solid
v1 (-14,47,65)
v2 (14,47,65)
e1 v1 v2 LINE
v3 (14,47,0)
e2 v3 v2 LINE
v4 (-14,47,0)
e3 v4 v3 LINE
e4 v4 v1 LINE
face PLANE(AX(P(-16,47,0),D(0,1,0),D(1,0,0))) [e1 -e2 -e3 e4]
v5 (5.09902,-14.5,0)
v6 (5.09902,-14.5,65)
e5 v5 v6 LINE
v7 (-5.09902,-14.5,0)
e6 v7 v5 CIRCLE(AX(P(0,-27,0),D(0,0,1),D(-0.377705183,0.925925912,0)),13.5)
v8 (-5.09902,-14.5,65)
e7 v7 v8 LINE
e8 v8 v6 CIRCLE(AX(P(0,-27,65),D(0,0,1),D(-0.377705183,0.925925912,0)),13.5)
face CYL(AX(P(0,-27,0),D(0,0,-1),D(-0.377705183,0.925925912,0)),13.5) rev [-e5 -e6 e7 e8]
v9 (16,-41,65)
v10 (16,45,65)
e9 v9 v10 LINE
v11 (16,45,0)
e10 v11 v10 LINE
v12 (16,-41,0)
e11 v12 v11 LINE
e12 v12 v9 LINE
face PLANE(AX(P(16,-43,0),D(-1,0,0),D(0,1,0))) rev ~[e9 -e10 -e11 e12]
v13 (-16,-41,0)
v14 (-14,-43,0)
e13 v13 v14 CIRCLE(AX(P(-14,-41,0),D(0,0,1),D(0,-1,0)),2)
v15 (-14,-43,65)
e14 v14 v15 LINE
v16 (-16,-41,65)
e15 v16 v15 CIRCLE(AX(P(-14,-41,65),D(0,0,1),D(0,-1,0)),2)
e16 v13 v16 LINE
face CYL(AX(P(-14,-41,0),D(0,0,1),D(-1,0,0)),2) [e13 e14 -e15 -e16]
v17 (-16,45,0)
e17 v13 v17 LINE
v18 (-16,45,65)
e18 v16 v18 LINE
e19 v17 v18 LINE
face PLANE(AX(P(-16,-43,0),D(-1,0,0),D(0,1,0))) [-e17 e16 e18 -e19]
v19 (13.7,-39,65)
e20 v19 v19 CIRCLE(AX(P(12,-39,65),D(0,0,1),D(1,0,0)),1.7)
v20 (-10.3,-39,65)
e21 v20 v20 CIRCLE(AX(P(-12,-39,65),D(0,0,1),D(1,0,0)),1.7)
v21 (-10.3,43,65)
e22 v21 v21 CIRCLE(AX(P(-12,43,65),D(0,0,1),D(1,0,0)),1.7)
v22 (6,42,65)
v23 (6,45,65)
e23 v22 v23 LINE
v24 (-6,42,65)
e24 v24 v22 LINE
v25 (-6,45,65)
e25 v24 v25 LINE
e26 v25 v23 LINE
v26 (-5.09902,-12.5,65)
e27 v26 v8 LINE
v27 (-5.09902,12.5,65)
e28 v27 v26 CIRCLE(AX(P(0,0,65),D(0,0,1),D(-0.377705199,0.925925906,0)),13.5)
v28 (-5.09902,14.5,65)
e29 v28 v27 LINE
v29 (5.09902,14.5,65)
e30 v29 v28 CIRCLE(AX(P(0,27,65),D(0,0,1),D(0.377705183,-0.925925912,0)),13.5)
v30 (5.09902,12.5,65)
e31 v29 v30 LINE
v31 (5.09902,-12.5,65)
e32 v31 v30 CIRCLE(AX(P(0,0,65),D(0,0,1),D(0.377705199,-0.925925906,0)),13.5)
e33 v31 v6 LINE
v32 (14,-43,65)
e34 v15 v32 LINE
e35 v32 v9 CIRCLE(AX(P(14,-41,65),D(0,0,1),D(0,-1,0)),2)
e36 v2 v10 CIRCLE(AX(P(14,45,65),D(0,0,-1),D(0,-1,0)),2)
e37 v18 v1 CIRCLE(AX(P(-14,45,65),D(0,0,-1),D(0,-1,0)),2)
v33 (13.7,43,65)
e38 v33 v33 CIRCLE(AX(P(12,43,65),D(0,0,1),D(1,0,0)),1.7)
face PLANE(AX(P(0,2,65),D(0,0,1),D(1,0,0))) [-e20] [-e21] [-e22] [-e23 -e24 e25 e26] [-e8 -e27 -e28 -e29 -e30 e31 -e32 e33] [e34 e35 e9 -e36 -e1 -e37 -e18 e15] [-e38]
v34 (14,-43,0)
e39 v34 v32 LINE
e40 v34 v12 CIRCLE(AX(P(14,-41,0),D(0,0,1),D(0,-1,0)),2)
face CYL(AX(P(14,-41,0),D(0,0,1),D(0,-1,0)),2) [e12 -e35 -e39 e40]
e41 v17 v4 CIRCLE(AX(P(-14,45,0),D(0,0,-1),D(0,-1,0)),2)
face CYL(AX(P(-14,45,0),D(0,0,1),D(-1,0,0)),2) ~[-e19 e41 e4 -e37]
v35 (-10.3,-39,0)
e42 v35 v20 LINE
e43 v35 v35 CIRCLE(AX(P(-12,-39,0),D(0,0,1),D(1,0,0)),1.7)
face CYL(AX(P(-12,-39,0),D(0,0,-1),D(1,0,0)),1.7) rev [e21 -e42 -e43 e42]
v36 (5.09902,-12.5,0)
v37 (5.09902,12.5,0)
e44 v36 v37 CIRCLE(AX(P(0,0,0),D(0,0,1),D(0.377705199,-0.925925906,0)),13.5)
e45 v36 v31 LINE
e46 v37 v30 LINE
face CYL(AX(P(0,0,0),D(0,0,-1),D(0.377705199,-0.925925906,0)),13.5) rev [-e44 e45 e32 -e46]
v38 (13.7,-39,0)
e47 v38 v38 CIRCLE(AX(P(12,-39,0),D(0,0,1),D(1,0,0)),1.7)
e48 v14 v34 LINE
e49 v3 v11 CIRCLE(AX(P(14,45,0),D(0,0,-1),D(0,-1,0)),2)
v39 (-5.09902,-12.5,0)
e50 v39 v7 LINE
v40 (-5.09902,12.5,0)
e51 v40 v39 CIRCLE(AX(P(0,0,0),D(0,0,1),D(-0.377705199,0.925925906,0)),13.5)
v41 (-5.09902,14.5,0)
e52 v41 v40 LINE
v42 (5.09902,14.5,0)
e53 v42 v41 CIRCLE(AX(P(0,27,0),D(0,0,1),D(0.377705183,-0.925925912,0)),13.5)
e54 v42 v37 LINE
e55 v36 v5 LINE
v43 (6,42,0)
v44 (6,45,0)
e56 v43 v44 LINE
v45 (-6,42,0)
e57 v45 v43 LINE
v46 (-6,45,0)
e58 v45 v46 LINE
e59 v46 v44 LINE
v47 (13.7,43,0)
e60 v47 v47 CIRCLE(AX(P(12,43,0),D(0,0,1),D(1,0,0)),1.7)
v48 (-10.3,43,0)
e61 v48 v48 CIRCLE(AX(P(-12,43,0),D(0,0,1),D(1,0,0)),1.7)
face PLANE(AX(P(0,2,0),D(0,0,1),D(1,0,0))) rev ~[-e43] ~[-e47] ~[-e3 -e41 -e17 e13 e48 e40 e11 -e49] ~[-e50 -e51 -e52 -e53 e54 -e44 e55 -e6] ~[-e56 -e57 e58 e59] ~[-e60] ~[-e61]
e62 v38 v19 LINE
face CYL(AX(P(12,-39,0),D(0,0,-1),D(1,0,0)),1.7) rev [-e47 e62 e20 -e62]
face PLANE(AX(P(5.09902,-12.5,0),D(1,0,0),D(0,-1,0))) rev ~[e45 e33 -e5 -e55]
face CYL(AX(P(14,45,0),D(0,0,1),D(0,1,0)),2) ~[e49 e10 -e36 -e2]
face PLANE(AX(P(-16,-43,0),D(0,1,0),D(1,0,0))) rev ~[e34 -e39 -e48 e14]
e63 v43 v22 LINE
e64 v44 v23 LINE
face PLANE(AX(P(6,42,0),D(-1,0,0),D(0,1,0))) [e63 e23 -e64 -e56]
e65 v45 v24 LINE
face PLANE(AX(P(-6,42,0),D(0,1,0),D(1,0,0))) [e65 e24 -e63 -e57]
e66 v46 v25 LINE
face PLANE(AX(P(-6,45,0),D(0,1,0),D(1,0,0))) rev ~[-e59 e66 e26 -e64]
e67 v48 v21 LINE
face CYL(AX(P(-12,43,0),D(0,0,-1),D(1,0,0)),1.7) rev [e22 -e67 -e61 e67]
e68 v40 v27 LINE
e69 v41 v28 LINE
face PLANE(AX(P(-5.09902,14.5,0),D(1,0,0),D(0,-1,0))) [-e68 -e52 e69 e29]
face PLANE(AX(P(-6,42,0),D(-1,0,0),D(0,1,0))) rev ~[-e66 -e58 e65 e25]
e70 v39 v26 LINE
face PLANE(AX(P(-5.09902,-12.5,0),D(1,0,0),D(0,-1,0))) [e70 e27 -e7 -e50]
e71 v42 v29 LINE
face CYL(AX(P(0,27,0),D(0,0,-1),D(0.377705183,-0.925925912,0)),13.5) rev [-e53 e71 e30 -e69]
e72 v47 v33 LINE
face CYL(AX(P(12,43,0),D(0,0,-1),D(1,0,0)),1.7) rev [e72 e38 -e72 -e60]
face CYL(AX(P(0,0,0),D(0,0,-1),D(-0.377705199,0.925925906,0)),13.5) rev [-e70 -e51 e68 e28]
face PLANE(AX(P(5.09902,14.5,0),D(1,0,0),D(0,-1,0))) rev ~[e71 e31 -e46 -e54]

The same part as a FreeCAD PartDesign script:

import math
import FreeCAD as App
import Part
import Sketcher


def edges_at(feature, points):
    """Names of the edges that pass closest to the given points."""
    edges = feature.Shape.Edges
    near = lambda p: min(range(len(edges)), key=lambda i: edges[i].distToShape(Part.Vertex(*p))[0])
    return sorted({f"Edge{near(p) + 1}" for p in points})


def add_polygon(sketch, points):
    """Adds a closed chain of lines whose ends are joined by coincident constraints."""
    first, n = sketch.GeometryCount, len(points)
    for a, b in zip(points, points[1:] + points[:1]):
        sketch.addGeometry(Part.LineSegment(App.Vector(*a, 0), App.Vector(*b, 0)), False)
    for i in range(n):
        sketch.addConstraint(Sketcher.Constraint("Coincident", first + i, 2, first + (i + 1) % n, 1))

doc = App.newDocument("Part")
params = doc.addObject("Spreadsheet::Sheet", "Params")
for row, (alias, value) in enumerate([
    ("sketch1_diameter", "3.4 mm"),
    ("sketch1_radius", "13.5 mm"),
    ("sketch1_width", "32 mm"),
    ("sketch1_width2", "12 mm"),
    ("sketch1_height", "90 mm"),
    ("pad1_length", "65 mm"),
    ("fillet_radius", "2 mm"),
], start=1):
    params.set(f"A{row}", alias)
    params.set(f"B{row}", "=" + value)
    params.setAlias(f"B{row}", alias)

body = doc.addObject("PartDesign::Body", "Body")

sketch1 = body.newObject("Sketcher::SketchObject", "Sketch")
sketch1.AttachmentSupport = (doc.getObject("XY_Plane"), [""])
sketch1.MapMode = "FlatFace"
add_polygon(sketch1, [(-16, 47), (-16, -43), (16, -43), (16, 47)])
sketch1.addGeometry(Part.Circle(App.Vector(-12, -39, 0), App.Vector(0, 0, 1), 1.7), False)
sketch1.addGeometry(Part.Circle(App.Vector(12, -39, 0), App.Vector(0, 0, 1), 1.7), False)
sketch1.addGeometry(Part.ArcOfCircle(Part.Circle(App.Vector(0, 27, 0), App.Vector(0, 0, 1), 13.5), math.radians(-68), math.radians(248)), False)
sketch1.addGeometry(Part.LineSegment(App.Vector(5.1, 14.5, 0), App.Vector(5.1, 12.5, 0)), False)
sketch1.addGeometry(Part.ArcOfCircle(Part.Circle(App.Vector(0, 0, 0), App.Vector(0, 0, 1), 13.5), math.radians(-68), math.radians(68)), False)
sketch1.addGeometry(Part.LineSegment(App.Vector(5.1, -12.5, 0), App.Vector(5.1, -14.5, 0)), False)
sketch1.addGeometry(Part.ArcOfCircle(Part.Circle(App.Vector(0, -27, 0), App.Vector(0, 0, 1), 13.5), math.radians(112), math.radians(428)), False)
sketch1.addGeometry(Part.LineSegment(App.Vector(-5.1, -14.5, 0), App.Vector(-5.1, -12.5, 0)), False)
sketch1.addGeometry(Part.ArcOfCircle(Part.Circle(App.Vector(0, 0, 0), App.Vector(0, 0, 1), 13.5), math.radians(112), math.radians(248)), False)
sketch1.addGeometry(Part.LineSegment(App.Vector(-5.1, 12.5, 0), App.Vector(-5.1, 14.5, 0)), False)
sketch1.addGeometry(Part.Circle(App.Vector(-12, 43, 0), App.Vector(0, 0, 1), 1.7), False)
add_polygon(sketch1, [(6, 42), (-6, 42), (-6, 45), (6, 45)])
sketch1.addGeometry(Part.Circle(App.Vector(12, 43, 0), App.Vector(0, 0, 1), 1.7), False)
sketch1.addConstraint(Sketcher.Constraint("Coincident", 6, 1, 7, 1))
sketch1.addConstraint(Sketcher.Constraint("Coincident", 7, 2, 8, 2))
sketch1.addConstraint(Sketcher.Constraint("Coincident", 8, 1, 9, 1))
sketch1.addConstraint(Sketcher.Constraint("Coincident", 9, 2, 10, 2))
sketch1.addConstraint(Sketcher.Constraint("Coincident", 10, 1, 11, 1))
sketch1.addConstraint(Sketcher.Constraint("Coincident", 11, 2, 12, 2))
sketch1.addConstraint(Sketcher.Constraint("Coincident", 12, 1, 13, 1))
sketch1.addConstraint(Sketcher.Constraint("Coincident", 13, 2, 6, 2))
sketch1.addConstraint(Sketcher.Constraint("Vertical", 0))
sketch1.addConstraint(Sketcher.Constraint("Horizontal", 1))
sketch1.addConstraint(Sketcher.Constraint("Vertical", 2))
sketch1.addConstraint(Sketcher.Constraint("Horizontal", 3))
sketch1.addConstraint(Sketcher.Constraint("Vertical", 7))
sketch1.addConstraint(Sketcher.Constraint("Vertical", 9))
sketch1.addConstraint(Sketcher.Constraint("Vertical", 11))
sketch1.addConstraint(Sketcher.Constraint("Vertical", 13))
sketch1.addConstraint(Sketcher.Constraint("Horizontal", 15))
sketch1.addConstraint(Sketcher.Constraint("Vertical", 16))
sketch1.addConstraint(Sketcher.Constraint("Horizontal", 17))
sketch1.addConstraint(Sketcher.Constraint("Vertical", 18))
sketch1.addConstraint(Sketcher.Constraint("Coincident", 8, 3, -1, 1))
sketch1.addConstraint(Sketcher.Constraint("Coincident", 12, 3, -1, 1))
sketch1.addConstraint(Sketcher.Constraint("Equal", 4, 5))
sketch1.addConstraint(Sketcher.Constraint("Equal", 6, 8))
sketch1.addConstraint(Sketcher.Constraint("Equal", 8, 10))
sketch1.addConstraint(Sketcher.Constraint("Equal", 10, 12))
sketch1.addConstraint(Sketcher.Constraint("Equal", 5, 14))
sketch1.addConstraint(Sketcher.Constraint("Equal", 14, 19))
sketch1.addConstraint(Sketcher.Constraint("Symmetric", 6, 3, 10, 3, -1, 1))
sketch1.addConstraint(Sketcher.Constraint("Symmetric", 4, 3, 5, 3, -2))
sketch1.addConstraint(Sketcher.Constraint("Symmetric", 14, 3, 19, 3, -2))
sketch1.addConstraint(Sketcher.Constraint("Symmetric", 9, 2, 10, 1, -2))
sketch1.addConstraint(Sketcher.Constraint("Horizontal", 7, 2, 12, 1))
sketch1.addConstraint(Sketcher.Constraint("Vertical", 4, 3, 14, 3))
sketch1.addConstraint(Sketcher.Constraint("Vertical", 7, 2, 8, 1))
sketch1.addConstraint(Sketcher.Constraint("Diameter", 4, 3.4))
sketch1.addConstraint(Sketcher.Constraint("Radius", 6, 13.5))
sketch1.addConstraint(Sketcher.Constraint("DistanceX", 1, 1, 1, 2, 32.0))
sketch1.addConstraint(Sketcher.Constraint("DistanceX", 15, 2, 15, 1, 12.0))
sketch1.addConstraint(Sketcher.Constraint("DistanceY", 0, 2, 0, 1, 90.0))
sketch1.addConstraint(Sketcher.Constraint("DistanceY", 7, 2, 7, 1, 2.0))
sketch1.addConstraint(Sketcher.Constraint("DistanceY", 16, 1, 16, 2, 3.0))
sketch1.addConstraint(Sketcher.Constraint("DistanceX", 4, 3, -1, 1, 12.0))
sketch1.addConstraint(Sketcher.Constraint("DistanceY", 4, 3, -1, 1, 39.0))
sketch1.addConstraint(Sketcher.Constraint("DistanceY", -1, 1, 6, 3, 27.0))
sketch1.addConstraint(Sketcher.Constraint("DistanceY", -1, 1, 14, 3, 43.0))
sketch1.addConstraint(Sketcher.Constraint("DistanceX", 0, 2, -1, 1, 16.0))
sketch1.addConstraint(Sketcher.Constraint("DistanceY", 0, 2, -1, 1, 43.0))
sketch1.addConstraint(Sketcher.Constraint("DistanceX", 15, 2, -1, 1, 6.0))
sketch1.addConstraint(Sketcher.Constraint("DistanceY", -1, 1, 15, 2, 42.0))
sketch1.setExpression("Constraints[43]", "Params.sketch1_diameter")
sketch1.setExpression("Constraints[44]", "Params.sketch1_radius")
sketch1.setExpression("Constraints[45]", "Params.sketch1_width")
sketch1.setExpression("Constraints[46]", "Params.sketch1_width2")
sketch1.setExpression("Constraints[47]", "Params.sketch1_height")
pad1 = body.newObject("PartDesign::Pad", "Pad")
pad1.Profile = sketch1
pad1.setExpression("Length", "Params.pad1_length")
doc.recompute()

fillet = body.newObject("PartDesign::Fillet", "Fillet")
fillet.Base = (pad1, edges_at(pad1, [
    (-16, 47, 32.5),
    (16, 47, 32.5),
    (16, -43, 32.5),
    (-16, -43, 32.5),
]))
fillet.setExpression("Radius", "Params.fillet_radius")

doc.recompute()
